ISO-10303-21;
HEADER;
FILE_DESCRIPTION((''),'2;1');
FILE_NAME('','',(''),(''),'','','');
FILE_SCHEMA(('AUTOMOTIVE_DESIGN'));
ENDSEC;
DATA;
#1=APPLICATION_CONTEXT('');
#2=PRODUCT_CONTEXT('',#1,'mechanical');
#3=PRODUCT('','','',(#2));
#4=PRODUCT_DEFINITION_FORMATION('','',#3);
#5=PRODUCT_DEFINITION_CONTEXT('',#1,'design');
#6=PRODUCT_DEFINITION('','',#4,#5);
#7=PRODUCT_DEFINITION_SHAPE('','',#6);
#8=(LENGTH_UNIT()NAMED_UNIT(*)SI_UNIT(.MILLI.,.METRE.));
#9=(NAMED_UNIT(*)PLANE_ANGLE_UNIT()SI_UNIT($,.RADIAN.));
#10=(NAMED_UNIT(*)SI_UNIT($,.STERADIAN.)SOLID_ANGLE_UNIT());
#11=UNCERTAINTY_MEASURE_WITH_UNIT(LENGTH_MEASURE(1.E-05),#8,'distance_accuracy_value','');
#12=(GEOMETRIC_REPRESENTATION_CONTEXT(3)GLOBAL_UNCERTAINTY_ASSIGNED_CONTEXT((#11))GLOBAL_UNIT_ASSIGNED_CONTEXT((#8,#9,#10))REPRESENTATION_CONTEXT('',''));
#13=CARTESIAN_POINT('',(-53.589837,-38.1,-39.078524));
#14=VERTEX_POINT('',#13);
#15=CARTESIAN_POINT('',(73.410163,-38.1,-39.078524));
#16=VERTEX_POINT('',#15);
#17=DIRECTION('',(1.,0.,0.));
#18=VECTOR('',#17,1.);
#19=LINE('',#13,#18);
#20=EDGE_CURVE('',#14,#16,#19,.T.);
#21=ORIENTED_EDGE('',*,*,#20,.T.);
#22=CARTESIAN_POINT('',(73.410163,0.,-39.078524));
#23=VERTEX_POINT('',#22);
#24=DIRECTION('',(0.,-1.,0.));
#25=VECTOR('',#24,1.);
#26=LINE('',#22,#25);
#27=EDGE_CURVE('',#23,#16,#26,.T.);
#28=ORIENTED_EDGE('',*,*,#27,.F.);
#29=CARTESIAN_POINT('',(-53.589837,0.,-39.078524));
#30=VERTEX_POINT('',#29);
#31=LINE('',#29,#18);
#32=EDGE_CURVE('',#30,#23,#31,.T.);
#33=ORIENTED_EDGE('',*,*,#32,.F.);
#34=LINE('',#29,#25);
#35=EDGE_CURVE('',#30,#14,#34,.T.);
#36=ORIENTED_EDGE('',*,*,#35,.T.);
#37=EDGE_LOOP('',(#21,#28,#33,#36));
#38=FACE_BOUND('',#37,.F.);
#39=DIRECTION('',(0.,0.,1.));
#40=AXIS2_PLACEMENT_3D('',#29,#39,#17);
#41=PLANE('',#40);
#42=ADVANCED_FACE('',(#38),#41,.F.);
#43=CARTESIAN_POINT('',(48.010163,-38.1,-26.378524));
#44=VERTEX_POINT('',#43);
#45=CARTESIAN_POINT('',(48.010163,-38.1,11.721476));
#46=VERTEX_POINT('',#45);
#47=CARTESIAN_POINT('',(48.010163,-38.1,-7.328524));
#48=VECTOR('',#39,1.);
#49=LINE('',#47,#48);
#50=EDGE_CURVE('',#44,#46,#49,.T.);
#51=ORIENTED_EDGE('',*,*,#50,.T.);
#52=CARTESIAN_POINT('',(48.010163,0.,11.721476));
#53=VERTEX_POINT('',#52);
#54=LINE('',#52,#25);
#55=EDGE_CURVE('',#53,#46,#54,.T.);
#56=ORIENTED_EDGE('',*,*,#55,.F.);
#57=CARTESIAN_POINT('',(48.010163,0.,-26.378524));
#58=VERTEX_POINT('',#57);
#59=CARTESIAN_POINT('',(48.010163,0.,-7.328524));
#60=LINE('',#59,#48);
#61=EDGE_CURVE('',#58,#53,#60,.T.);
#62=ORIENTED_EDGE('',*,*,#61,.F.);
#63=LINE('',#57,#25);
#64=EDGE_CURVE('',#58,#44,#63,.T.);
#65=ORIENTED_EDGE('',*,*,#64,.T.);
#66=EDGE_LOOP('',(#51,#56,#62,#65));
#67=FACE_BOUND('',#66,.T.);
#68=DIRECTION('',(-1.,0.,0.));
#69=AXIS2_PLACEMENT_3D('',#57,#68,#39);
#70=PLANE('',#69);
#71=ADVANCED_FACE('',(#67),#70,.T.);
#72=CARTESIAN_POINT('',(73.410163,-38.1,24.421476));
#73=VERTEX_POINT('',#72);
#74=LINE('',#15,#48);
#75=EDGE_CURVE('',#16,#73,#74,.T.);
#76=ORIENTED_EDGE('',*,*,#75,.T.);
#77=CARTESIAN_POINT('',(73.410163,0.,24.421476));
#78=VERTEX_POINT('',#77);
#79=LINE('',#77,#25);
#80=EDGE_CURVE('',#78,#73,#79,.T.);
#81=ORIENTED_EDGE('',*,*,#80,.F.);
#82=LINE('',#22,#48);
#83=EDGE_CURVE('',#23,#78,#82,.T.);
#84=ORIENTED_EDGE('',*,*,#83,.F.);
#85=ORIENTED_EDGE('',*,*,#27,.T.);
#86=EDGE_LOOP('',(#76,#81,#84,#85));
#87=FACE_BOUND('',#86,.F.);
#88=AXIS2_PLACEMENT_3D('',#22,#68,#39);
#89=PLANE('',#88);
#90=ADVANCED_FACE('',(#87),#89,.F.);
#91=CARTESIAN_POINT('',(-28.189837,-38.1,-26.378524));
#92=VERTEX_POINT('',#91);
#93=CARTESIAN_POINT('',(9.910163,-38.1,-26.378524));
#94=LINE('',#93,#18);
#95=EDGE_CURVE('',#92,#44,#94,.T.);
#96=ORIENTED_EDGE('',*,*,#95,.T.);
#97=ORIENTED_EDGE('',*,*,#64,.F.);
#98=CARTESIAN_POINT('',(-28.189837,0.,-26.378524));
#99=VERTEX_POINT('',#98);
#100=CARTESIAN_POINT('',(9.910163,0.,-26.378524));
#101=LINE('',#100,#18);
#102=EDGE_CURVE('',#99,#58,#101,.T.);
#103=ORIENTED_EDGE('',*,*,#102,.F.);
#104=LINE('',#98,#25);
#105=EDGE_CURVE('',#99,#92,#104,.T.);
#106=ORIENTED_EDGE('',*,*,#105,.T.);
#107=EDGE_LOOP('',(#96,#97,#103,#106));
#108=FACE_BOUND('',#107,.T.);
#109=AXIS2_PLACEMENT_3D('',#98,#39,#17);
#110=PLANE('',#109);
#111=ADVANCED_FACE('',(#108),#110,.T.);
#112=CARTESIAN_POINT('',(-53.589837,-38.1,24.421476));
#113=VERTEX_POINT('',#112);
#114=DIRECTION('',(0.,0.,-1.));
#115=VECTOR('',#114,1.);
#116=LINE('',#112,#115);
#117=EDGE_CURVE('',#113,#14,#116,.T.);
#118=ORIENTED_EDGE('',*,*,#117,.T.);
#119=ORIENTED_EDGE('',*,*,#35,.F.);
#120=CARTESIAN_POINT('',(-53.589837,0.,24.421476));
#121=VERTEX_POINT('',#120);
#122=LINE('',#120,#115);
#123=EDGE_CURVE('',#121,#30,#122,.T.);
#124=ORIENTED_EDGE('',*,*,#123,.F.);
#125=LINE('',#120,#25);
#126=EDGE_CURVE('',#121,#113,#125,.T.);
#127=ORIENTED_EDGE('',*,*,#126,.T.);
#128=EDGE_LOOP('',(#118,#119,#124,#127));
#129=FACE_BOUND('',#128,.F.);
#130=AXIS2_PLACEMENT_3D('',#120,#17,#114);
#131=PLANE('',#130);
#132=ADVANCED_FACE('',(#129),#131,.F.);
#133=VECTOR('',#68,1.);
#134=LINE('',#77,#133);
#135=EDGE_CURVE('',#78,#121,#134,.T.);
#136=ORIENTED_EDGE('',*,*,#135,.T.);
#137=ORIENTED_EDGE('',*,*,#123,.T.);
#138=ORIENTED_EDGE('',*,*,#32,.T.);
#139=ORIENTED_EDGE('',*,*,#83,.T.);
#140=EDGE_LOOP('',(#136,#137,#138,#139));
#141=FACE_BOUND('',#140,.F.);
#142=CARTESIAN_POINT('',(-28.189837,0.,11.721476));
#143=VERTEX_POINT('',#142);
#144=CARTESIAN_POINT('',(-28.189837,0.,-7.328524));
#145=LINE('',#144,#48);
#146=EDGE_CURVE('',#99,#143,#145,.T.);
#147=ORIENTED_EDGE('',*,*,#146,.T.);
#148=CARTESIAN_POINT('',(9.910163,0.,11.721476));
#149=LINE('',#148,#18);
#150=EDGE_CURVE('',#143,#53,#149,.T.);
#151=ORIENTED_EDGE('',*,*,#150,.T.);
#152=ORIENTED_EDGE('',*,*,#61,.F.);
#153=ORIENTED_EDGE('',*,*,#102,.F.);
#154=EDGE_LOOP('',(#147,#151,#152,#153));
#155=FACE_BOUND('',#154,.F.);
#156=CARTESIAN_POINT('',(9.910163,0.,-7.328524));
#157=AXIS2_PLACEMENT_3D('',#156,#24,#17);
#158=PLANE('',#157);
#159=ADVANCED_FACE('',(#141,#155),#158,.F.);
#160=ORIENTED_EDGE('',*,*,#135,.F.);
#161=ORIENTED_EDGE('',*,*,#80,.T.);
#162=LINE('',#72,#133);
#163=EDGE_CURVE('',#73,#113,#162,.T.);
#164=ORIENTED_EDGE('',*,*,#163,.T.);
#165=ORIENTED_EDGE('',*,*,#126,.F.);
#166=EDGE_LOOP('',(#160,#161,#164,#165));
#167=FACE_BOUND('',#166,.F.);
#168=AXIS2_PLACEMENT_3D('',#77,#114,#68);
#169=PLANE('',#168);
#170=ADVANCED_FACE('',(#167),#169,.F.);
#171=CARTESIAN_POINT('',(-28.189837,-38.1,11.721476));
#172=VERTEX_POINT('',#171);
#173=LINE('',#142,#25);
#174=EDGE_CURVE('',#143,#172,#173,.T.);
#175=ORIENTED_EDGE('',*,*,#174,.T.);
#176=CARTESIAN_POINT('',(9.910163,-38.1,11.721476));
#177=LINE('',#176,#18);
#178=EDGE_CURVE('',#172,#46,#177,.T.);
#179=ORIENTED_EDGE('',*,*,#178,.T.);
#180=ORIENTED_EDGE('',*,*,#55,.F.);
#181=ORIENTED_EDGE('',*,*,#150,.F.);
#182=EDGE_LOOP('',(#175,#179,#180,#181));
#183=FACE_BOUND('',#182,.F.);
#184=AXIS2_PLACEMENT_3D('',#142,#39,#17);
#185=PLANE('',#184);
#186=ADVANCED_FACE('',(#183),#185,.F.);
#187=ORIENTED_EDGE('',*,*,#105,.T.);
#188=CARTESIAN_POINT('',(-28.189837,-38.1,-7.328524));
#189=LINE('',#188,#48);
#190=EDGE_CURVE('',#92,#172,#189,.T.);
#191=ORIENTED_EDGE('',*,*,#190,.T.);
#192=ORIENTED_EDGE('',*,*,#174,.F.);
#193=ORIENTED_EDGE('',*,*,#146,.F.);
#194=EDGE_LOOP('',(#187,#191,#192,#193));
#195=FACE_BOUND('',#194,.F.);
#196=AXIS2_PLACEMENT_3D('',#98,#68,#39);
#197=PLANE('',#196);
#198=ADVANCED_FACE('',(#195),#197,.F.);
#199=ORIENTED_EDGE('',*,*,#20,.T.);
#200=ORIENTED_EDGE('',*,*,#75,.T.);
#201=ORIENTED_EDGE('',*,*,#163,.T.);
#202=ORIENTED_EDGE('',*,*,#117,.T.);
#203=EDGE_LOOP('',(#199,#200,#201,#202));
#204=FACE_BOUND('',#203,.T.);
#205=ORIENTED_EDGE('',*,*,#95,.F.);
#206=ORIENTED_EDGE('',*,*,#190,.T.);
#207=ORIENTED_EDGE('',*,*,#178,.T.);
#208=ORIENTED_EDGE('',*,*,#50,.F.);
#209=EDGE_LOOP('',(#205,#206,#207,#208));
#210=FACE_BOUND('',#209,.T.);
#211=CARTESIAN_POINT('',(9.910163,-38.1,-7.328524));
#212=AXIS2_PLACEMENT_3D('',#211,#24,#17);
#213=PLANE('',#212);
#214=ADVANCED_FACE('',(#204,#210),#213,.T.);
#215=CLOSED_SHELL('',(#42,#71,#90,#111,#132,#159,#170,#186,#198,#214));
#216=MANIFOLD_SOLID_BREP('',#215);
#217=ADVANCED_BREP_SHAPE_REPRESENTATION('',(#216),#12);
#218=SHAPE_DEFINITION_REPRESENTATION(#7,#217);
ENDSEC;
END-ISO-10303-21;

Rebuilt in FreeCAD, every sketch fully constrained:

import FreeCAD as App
import Part
import Sketcher
Q = App.Units.Quantity


def add_polygon(sketch, points):
    """Adds a closed chain of lines whose ends are joined by coincident constraints."""
    first, n = sketch.GeometryCount, len(points)
    for a, b in zip(points, points[1:] + points[:1]):
        sketch.addGeometry(Part.LineSegment(App.Vector(*a, 0), App.Vector(*b, 0)), False)
    for i in range(n):
        sketch.addConstraint(Sketcher.Constraint("Coincident", first + i, 2, first + (i + 1) % n, 1))

doc = App.newDocument("Part")
body = doc.addObject("PartDesign::Body", "Body")

sketch1 = doc.addObject("Sketcher::SketchObject", "Sketch")
body.addObject(sketch1)
sketch1.AttachmentSupport = (doc.XZ_Plane, [""])
sketch1.MapMode = "FlatFace"
add_polygon(sketch1, [(-54, -39), (73, -39), (73, 24), (-54, 24)])
add_polygon(sketch1, [(48, -26), (-28, -26), (-28, 12), (48, 12)])
sketch1.addConstraint(Sketcher.Constraint("Horizontal", 0))
sketch1.addConstraint(Sketcher.Constraint("Vertical", 1))
sketch1.addConstraint(Sketcher.Constraint("Horizontal", 2))
sketch1.addConstraint(Sketcher.Constraint("Vertical", 3))
sketch1.addConstraint(Sketcher.Constraint("Horizontal", 4))
sketch1.addConstraint(Sketcher.Constraint("Vertical", 5))
sketch1.addConstraint(Sketcher.Constraint("Horizontal", 6))
sketch1.addConstraint(Sketcher.Constraint("Vertical", 7))
sketch1.addConstraint(Sketcher.Constraint("DistanceX", 0, 1, 0, 2, Q("5 in")))
sketch1.addConstraint(Sketcher.Constraint("DistanceX", 4, 2, 4, 1, Q("3 in")))
sketch1.addConstraint(Sketcher.Constraint("DistanceY", 1, 1, 1, 2, Q("2.5 in")))
sketch1.addConstraint(Sketcher.Constraint("DistanceY", 5, 1, 5, 2, Q("1.5 in")))
sketch1.addConstraint(Sketcher.Constraint("DistanceX", 3, 2, 4, 2, Q("1 in")))
sketch1.addConstraint(Sketcher.Constraint("DistanceY", 4, 2, 2, 2, Q("2 in")))
sketch1.addConstraint(Sketcher.Constraint("DistanceX", -1, 1, 0, 2, Q("73.410163 mm")))
sketch1.addConstraint(Sketcher.Constraint("DistanceY", 0, 2, -1, 1, Q("39.078524 mm")))
pad1 = doc.addObject("PartDesign::Pad", "Pad")
body.addObject(pad1)
pad1.Profile = sketch1
pad1.Length = Q("1.5 in")

doc.recompute()
